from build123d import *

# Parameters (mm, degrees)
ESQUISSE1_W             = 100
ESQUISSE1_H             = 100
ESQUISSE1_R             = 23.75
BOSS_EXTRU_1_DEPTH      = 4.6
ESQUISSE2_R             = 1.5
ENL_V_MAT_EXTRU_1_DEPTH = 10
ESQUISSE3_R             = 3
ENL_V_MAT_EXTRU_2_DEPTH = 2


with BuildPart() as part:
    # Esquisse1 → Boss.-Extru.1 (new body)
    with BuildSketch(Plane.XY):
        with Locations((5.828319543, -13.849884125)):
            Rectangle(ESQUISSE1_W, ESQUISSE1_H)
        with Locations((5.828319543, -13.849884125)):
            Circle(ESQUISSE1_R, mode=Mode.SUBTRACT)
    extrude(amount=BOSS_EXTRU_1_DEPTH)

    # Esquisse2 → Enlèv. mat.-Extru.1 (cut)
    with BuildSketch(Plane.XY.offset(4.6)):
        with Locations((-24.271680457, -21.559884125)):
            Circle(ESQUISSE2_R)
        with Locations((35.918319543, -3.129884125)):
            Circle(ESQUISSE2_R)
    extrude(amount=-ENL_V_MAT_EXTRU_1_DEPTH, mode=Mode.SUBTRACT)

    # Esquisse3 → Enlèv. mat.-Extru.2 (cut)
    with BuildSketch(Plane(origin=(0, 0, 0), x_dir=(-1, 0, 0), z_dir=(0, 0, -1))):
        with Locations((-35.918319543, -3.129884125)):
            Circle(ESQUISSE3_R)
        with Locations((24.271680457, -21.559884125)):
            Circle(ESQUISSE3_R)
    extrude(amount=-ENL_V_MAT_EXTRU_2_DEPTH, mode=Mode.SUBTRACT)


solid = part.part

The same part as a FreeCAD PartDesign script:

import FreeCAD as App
import Part
import Sketcher

doc = App.newDocument("Part")
params = doc.addObject("Spreadsheet::Sheet", "Params")
for row, (alias, value) in enumerate([
    ("sketch1_diameter", "47.5 mm"),
    ("sketch1_width", "100 mm"),
    ("pad1_length", "4.6 mm"),
    ("sketch2_diameter", "3 mm"),
    ("pocket1_length", "10 mm"),
    ("sketch3_diameter", "6 mm"),
    ("pocket2_length", "2 mm"),
], start=1):
    params.set(f"A{row}", alias)
    params.set(f"B{row}", "=" + value)
    params.setAlias(f"B{row}", alias)

body = doc.addObject("PartDesign::Body", "Body")

sketch1 = body.newObject("Sketcher::SketchObject", "Sketch")
sketch1.AttachmentSupport = (doc.getObject("XY_Plane"), [""])
sketch1.MapMode = "FlatFace"
sketch1.addGeometry([
    Part.LineSegment(App.Vector(-44.17168, 36.150116, 0), App.Vector(-44.17168, -63.849884, 0)),
    Part.LineSegment(App.Vector(-44.17168, -63.849884, 0), App.Vector(55.82832, -63.849884, 0)),
    Part.LineSegment(App.Vector(55.82832, -63.849884, 0), App.Vector(55.82832, 36.150116, 0)),
    Part.LineSegment(App.Vector(55.82832, 36.150116, 0), App.Vector(-44.17168, 36.150116, 0)),
    Part.Circle(App.Vector(5.82832, -13.849884, 0), App.Vector(0, 0, 1), 23.75),
], False)
sketch1.addConstraint([
    Sketcher.Constraint("Coincident", 0, 2, 1, 1),
    Sketcher.Constraint("Coincident", 1, 2, 2, 1),
    Sketcher.Constraint("Coincident", 2, 2, 3, 1),
    Sketcher.Constraint("Coincident", 3, 2, 0, 1),
    Sketcher.Constraint("Vertical", 0),
    Sketcher.Constraint("Horizontal", 1),
    Sketcher.Constraint("Vertical", 2),
    Sketcher.Constraint("Horizontal", 3),
    Sketcher.Constraint("Equal", 3, 0),
    Sketcher.Constraint("Diameter", 4, 47.5),
    Sketcher.Constraint("DistanceX", 1, 1, 1, 2, 100.0),
    Sketcher.Constraint("DistanceX", 0, 2, 4, 3, 50.0),
    Sketcher.Constraint("DistanceY", 0, 2, 4, 3, 50.0),
    Sketcher.Constraint("DistanceX", -1, 1, 4, 3, 5.82832),
    Sketcher.Constraint("DistanceY", 4, 3, -1, 1, 13.849884),
])
sketch1.setExpression("Constraints[9]", "Params.sketch1_diameter")
sketch1.setExpression("Constraints[10]", "Params.sketch1_width")
pad1 = body.newObject("PartDesign::Pad", "Pad")
pad1.Profile = sketch1
pad1.setExpression("Length", "Params.pad1_length")

sketch2 = body.newObject("Sketcher::SketchObject", "Sketch001")
sketch2.AttachmentSupport = (doc.getObject("XY_Plane"), [""])
sketch2.MapMode = "FlatFace"
sketch2.AttachmentOffset = App.Placement(App.Vector(0, 0, 4.6), App.Rotation())
sketch2.addGeometry([
    Part.Circle(App.Vector(-24.27168, -21.559884, 0), App.Vector(0, 0, 1), 1.5),
    Part.Circle(App.Vector(35.91832, -3.129884, 0), App.Vector(0, 0, 1), 1.5),
], False)
sketch2.addConstraint([
    Sketcher.Constraint("Equal", 0, 1),
    Sketcher.Constraint("Diameter", 0, 3.0),
    Sketcher.Constraint("DistanceX", 0, 3, 1, 3, 60.19),
    Sketcher.Constraint("DistanceY", 0, 3, 1, 3, 18.43),
    Sketcher.Constraint("DistanceX", 0, 3, -1, 1, 24.27168),
    Sketcher.Constraint("DistanceY", 0, 3, -1, 1, 21.559884),
])
sketch2.setExpression("Constraints[1]", "Params.sketch2_diameter")
pocket1 = body.newObject("PartDesign::Pocket", "Pocket")
pocket1.Profile = sketch2
pocket1.setExpression("Length", "Params.pocket1_length")

sketch3 = body.newObject("Sketcher::SketchObject", "Sketch002")
sketch3.AttachmentSupport = (doc.getObject("XY_Plane"), [""])
sketch3.MapMode = "FlatFace"
sketch3.addGeometry([
    Part.Circle(App.Vector(35.91832, -3.129884, 0), App.Vector(0, 0, 1), 3),
    Part.Circle(App.Vector(-24.27168, -21.559884, 0), App.Vector(0, 0, 1), 3),
], False)
sketch3.addConstraint([
    Sketcher.Constraint("Equal", 0, 1),
    Sketcher.Constraint("Diameter", 0, 6.0),
    Sketcher.Constraint("DistanceX", 1, 3, 0, 3, 60.19),
    Sketcher.Constraint("DistanceY", 1, 3, 0, 3, 18.43),
    Sketcher.Constraint("DistanceX", -1, 1, 0, 3, 35.91832),
    Sketcher.Constraint("DistanceY", 0, 3, -1, 1, 3.129884),
])
sketch3.setExpression("Constraints[1]", "Params.sketch3_diameter")
pocket2 = body.newObject("PartDesign::Pocket", "Pocket001")
pocket2.Profile = sketch3
pocket2.setExpression("Length", "Params.pocket2_length")
pocket2.Reversed = True

doc.recompute()
